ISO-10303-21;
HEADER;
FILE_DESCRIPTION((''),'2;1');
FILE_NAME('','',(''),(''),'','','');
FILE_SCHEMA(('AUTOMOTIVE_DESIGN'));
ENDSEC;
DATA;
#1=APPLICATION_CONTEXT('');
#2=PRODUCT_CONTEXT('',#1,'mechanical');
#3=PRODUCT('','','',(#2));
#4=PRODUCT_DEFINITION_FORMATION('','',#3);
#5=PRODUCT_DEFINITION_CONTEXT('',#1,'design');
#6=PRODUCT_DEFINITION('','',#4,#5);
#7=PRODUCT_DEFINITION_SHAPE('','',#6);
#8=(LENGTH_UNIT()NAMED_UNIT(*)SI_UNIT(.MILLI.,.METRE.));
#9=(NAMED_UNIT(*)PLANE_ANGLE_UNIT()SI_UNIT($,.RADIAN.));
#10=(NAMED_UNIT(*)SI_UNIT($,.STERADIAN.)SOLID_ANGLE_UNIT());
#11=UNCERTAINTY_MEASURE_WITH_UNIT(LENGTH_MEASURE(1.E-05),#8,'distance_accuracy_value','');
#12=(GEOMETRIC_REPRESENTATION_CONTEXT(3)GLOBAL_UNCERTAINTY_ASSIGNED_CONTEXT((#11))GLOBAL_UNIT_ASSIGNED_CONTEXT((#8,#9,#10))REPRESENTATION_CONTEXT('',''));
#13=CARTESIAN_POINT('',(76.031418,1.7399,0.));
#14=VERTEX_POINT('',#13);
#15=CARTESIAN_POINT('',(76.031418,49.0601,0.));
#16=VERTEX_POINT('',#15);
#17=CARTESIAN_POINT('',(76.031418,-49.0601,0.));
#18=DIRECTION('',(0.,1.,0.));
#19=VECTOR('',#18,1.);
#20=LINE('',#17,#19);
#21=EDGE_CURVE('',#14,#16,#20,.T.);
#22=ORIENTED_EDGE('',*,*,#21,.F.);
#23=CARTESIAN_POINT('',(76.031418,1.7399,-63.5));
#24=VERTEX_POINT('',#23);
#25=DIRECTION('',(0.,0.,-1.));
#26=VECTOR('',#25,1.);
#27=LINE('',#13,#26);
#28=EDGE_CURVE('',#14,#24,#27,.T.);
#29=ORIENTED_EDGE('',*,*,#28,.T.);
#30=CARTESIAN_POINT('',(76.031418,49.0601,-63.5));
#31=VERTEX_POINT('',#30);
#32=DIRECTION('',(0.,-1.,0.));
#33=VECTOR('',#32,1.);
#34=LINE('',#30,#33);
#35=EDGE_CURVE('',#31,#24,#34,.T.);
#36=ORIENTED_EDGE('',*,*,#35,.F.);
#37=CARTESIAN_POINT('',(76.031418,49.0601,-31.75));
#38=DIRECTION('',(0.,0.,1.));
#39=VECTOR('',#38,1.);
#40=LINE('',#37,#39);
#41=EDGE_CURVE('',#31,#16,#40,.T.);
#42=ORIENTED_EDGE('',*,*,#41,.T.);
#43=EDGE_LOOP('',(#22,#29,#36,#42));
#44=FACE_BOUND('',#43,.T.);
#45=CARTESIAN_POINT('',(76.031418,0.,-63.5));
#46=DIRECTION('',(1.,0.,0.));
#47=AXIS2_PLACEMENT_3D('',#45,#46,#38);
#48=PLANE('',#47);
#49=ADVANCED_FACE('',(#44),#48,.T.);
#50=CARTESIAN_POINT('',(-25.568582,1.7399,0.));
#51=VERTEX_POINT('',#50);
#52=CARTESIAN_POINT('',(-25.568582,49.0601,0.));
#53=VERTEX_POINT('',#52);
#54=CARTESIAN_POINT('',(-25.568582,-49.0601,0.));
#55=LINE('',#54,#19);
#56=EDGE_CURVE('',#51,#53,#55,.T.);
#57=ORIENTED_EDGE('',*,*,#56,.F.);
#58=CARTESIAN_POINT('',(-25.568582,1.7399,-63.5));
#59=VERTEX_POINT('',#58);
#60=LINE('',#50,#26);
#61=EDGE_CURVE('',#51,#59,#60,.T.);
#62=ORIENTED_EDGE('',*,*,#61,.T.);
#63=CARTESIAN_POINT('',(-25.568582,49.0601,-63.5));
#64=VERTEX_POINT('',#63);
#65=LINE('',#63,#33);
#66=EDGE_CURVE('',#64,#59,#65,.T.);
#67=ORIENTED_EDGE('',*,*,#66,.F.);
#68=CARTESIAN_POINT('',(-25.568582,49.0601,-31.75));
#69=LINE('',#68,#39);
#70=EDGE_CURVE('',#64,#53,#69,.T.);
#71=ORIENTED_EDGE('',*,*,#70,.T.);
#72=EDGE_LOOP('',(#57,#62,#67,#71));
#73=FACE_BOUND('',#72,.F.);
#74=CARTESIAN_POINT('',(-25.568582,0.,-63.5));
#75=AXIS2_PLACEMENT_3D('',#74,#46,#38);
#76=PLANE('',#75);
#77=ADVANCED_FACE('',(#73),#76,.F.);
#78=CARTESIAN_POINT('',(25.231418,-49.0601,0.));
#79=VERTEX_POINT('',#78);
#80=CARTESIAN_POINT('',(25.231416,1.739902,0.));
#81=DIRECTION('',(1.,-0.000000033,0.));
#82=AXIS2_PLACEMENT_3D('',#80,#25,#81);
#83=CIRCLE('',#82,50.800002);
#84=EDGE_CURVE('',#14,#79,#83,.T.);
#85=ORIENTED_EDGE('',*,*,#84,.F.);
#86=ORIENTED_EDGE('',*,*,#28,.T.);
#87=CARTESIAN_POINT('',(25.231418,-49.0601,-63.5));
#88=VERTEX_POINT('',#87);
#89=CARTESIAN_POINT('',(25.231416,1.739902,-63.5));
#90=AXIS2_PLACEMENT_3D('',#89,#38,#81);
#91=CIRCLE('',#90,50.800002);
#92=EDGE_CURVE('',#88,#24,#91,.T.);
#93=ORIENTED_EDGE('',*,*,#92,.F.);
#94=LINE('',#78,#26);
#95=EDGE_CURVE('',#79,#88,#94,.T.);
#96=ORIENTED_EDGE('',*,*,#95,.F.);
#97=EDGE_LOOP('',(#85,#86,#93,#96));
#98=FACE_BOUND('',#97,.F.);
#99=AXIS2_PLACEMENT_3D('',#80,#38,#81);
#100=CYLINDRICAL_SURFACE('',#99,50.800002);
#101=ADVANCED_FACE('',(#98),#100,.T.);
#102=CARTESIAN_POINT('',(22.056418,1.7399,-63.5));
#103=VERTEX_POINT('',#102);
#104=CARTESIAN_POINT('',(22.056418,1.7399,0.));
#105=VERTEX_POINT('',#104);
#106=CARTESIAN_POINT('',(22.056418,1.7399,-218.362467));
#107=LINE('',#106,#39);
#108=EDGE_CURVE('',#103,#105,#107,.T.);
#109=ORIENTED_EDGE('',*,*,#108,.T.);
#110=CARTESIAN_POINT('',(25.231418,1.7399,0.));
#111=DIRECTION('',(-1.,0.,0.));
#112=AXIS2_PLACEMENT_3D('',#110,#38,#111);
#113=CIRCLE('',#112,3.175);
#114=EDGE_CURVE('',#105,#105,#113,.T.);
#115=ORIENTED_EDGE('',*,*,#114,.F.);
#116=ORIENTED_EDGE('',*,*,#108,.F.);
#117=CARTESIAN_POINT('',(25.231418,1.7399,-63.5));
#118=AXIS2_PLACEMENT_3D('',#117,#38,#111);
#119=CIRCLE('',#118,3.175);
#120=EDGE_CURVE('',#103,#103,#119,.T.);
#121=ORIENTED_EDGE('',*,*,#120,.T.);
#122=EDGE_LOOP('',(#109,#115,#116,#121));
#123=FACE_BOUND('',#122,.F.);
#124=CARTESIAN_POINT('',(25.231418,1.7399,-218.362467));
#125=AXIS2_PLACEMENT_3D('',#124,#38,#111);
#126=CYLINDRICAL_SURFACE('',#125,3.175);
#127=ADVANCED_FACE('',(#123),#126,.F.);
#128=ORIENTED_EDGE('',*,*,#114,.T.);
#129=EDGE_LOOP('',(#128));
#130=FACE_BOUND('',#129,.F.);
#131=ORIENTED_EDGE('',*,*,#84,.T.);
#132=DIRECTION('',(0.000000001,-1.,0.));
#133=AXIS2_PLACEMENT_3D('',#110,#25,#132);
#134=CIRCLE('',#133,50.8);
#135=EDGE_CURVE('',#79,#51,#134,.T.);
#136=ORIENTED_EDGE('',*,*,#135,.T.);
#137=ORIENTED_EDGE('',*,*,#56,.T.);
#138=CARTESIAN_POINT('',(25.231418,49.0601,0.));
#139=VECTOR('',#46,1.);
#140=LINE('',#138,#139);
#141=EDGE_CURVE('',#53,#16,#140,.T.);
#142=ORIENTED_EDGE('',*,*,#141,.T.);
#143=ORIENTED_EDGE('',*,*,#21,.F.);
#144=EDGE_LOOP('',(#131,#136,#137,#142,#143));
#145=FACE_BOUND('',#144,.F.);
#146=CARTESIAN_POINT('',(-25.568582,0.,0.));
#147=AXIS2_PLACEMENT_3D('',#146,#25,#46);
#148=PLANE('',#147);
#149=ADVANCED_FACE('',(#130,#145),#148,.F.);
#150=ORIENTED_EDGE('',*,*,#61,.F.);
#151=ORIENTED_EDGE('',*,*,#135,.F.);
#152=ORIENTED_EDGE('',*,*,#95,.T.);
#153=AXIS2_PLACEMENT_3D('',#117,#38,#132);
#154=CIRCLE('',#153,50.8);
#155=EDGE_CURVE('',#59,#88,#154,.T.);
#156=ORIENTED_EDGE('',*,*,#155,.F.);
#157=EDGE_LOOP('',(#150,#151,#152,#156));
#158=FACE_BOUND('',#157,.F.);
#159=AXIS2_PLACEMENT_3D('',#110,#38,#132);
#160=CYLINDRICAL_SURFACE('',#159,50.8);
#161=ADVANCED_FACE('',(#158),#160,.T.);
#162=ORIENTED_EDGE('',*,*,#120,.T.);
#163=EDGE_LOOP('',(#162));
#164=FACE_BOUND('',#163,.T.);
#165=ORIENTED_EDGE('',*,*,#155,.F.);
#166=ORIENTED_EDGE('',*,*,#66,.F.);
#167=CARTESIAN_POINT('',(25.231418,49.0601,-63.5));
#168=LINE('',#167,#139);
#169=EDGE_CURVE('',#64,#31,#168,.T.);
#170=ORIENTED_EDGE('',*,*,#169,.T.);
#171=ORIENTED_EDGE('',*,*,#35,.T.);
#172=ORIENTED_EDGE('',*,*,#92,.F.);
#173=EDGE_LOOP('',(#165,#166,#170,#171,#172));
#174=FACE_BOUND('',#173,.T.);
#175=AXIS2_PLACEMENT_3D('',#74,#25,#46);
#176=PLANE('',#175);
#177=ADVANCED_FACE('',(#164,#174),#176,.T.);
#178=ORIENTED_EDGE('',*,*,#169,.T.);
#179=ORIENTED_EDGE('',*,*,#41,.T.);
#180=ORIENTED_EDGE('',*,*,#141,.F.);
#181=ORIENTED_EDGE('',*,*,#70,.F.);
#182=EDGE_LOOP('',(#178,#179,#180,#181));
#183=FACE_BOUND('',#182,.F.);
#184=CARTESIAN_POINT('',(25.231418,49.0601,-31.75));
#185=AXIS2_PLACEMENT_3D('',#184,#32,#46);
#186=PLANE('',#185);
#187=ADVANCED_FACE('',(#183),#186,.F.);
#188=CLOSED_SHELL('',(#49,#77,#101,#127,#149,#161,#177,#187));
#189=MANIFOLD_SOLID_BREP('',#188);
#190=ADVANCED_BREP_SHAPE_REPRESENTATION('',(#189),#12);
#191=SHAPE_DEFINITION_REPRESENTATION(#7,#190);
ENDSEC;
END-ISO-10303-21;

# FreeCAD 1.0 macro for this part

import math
import FreeCAD as App
import Part
import Sketcher
Q = App.Units.Quantity


def add_polygon(sketch, points):
    """Adds a closed chain of lines whose ends are joined by coincident constraints."""
    first, n = sketch.GeometryCount, len(points)
    for a, b in zip(points, points[1:] + points[:1]):
        sketch.addGeometry(Part.LineSegment(App.Vector(*a, 0), App.Vector(*b, 0)), False)
    for i in range(n):
        sketch.addConstraint(Sketcher.Constraint("Coincident", first + i, 2, first + (i + 1) % n, 1))

doc = App.newDocument("Part")
body = doc.addObject("PartDesign::Body", "Body")

# Sketch on XZ plane
sketch1 = doc.addObject("Sketcher::SketchObject", "Sketch")
body.addObject(sketch1)
sketch1.AttachmentSupport = (doc.XZ_Plane, [""])
sketch1.MapMode = "FlatFace"
add_polygon(sketch1, [(-26, 0), (-26, -64), (76, -64), (76, 0)])  # lines 0-3
sketch1.addConstraint([
    Sketcher.Constraint("Vertical", 0),
    Sketcher.Constraint("Horizontal", 1),
    Sketcher.Constraint("Vertical", 2),
    Sketcher.Constraint("Horizontal", 3),
    Sketcher.Constraint("PointOnObject", 2, 2, -1),
    Sketcher.Constraint("DistanceX", 1, 1, 1, 2, Q("4 in")),
    Sketcher.Constraint("DistanceY", 0, 2, 0, 1, Q("2.5 in")),
    Sketcher.Constraint("DistanceX", 0, 2, -1, 1, 25.568582),
])
pad1 = doc.addObject("PartDesign::Pad", "Pad")
body.addObject(pad1)
pad1.Profile = sketch1
pad1.Length = Q("3.863 in")
pad1.Midplane = True

# Sketch on XY plane
sketch2 = doc.addObject("Sketcher::SketchObject", "Sketch001")
body.addObject(sketch2)
sketch2.AttachmentSupport = (doc.XY_Plane, [""])
sketch2.MapMode = "FlatFace"
sketch2.addGeometry([
    Part.ArcOfCircle(Part.Circle(App.Vector(25, 2, 0), App.Vector(0, 0, 1), 51), math.radians(180), math.radians(270)),  # 0
    Part.LineSegment(App.Vector(-26, 2, 0), App.Vector(-26, -49, 0)),  # 1
    Part.LineSegment(App.Vector(-26, -49, 0), App.Vector(25, -49, 0)),  # 2
    Part.LineSegment(App.Vector(76, -49, 0), App.Vector(76, 2, 0)),  # 3
    Part.ArcOfCircle(Part.Circle(App.Vector(25, 2, 0), App.Vector(0, 0, 1), 51), math.radians(-90), math.radians(0)),  # 4
    Part.LineSegment(App.Vector(25, -49, 0), App.Vector(76, -49, 0)),  # 5
], False)
sketch2.addConstraint([
    Sketcher.Constraint("Tangent", 0, 1, 1, 1),
    Sketcher.Constraint("Coincident", 1, 2, 2, 1),
    Sketcher.Constraint("Tangent", 2, 2, 0, 2),
    Sketcher.Constraint("Tangent", 3, 2, 4, 2),
    Sketcher.Constraint("Tangent", 4, 1, 5, 1),
    Sketcher.Constraint("Coincident", 5, 2, 3, 1),
    Sketcher.Constraint("Vertical", 1),
    Sketcher.Constraint("Horizontal", 2),
    Sketcher.Constraint("Vertical", 3),
    Sketcher.Constraint("Horizontal", 5),
    Sketcher.Constraint("Coincident", 4, 3, 0, 3),
    Sketcher.Constraint("Equal", 0, 4),
    Sketcher.Constraint("Radius", 0, Q("2 in")),
    Sketcher.Constraint("DistanceY", -1, 1, 0, 3, Q("0.0685 in")),
    Sketcher.Constraint("DistanceX", 0, 1, -1, 1, 25.568582),
])
pocket1 = doc.addObject("PartDesign::Pocket", "Pocket")
body.addObject(pocket1)
pocket1.Profile = sketch2
pocket1.Type = "ThroughAll"

# Sketch on XY plane
sketch3 = doc.addObject("Sketcher::SketchObject", "Sketch002")
body.addObject(sketch3)
sketch3.AttachmentSupport = (doc.XY_Plane, [""])
sketch3.MapMode = "FlatFace"
sketch3.AttachmentOffset = App.Placement(App.Vector(0, 0, -2.5 * 25.4), App.Rotation())
sketch3.addGeometry(Part.Circle(App.Vector(25.2, 1.7, 0), App.Vector(0, 0, 1), 3.2), False)
sketch3.addConstraint([
    Sketcher.Constraint("Diameter", 0, Q("0.25 in")),
    Sketcher.Constraint("DistanceY", -1, 1, 0, 3, Q("0.0685 in")),
    Sketcher.Constraint("DistanceX", -1, 1, 0, 3, 25.231418),
])
doc.recompute()
hole = doc.addObject("PartDesign::Hole", "Hole")
body.addObject(hole)
hole.Profile = sketch3
hole.ThreadType = "None"
hole.Diameter = Q("0.25 in")
hole.DepthType = "ThroughAll"
hole.Reversed = True

doc.recompute()
